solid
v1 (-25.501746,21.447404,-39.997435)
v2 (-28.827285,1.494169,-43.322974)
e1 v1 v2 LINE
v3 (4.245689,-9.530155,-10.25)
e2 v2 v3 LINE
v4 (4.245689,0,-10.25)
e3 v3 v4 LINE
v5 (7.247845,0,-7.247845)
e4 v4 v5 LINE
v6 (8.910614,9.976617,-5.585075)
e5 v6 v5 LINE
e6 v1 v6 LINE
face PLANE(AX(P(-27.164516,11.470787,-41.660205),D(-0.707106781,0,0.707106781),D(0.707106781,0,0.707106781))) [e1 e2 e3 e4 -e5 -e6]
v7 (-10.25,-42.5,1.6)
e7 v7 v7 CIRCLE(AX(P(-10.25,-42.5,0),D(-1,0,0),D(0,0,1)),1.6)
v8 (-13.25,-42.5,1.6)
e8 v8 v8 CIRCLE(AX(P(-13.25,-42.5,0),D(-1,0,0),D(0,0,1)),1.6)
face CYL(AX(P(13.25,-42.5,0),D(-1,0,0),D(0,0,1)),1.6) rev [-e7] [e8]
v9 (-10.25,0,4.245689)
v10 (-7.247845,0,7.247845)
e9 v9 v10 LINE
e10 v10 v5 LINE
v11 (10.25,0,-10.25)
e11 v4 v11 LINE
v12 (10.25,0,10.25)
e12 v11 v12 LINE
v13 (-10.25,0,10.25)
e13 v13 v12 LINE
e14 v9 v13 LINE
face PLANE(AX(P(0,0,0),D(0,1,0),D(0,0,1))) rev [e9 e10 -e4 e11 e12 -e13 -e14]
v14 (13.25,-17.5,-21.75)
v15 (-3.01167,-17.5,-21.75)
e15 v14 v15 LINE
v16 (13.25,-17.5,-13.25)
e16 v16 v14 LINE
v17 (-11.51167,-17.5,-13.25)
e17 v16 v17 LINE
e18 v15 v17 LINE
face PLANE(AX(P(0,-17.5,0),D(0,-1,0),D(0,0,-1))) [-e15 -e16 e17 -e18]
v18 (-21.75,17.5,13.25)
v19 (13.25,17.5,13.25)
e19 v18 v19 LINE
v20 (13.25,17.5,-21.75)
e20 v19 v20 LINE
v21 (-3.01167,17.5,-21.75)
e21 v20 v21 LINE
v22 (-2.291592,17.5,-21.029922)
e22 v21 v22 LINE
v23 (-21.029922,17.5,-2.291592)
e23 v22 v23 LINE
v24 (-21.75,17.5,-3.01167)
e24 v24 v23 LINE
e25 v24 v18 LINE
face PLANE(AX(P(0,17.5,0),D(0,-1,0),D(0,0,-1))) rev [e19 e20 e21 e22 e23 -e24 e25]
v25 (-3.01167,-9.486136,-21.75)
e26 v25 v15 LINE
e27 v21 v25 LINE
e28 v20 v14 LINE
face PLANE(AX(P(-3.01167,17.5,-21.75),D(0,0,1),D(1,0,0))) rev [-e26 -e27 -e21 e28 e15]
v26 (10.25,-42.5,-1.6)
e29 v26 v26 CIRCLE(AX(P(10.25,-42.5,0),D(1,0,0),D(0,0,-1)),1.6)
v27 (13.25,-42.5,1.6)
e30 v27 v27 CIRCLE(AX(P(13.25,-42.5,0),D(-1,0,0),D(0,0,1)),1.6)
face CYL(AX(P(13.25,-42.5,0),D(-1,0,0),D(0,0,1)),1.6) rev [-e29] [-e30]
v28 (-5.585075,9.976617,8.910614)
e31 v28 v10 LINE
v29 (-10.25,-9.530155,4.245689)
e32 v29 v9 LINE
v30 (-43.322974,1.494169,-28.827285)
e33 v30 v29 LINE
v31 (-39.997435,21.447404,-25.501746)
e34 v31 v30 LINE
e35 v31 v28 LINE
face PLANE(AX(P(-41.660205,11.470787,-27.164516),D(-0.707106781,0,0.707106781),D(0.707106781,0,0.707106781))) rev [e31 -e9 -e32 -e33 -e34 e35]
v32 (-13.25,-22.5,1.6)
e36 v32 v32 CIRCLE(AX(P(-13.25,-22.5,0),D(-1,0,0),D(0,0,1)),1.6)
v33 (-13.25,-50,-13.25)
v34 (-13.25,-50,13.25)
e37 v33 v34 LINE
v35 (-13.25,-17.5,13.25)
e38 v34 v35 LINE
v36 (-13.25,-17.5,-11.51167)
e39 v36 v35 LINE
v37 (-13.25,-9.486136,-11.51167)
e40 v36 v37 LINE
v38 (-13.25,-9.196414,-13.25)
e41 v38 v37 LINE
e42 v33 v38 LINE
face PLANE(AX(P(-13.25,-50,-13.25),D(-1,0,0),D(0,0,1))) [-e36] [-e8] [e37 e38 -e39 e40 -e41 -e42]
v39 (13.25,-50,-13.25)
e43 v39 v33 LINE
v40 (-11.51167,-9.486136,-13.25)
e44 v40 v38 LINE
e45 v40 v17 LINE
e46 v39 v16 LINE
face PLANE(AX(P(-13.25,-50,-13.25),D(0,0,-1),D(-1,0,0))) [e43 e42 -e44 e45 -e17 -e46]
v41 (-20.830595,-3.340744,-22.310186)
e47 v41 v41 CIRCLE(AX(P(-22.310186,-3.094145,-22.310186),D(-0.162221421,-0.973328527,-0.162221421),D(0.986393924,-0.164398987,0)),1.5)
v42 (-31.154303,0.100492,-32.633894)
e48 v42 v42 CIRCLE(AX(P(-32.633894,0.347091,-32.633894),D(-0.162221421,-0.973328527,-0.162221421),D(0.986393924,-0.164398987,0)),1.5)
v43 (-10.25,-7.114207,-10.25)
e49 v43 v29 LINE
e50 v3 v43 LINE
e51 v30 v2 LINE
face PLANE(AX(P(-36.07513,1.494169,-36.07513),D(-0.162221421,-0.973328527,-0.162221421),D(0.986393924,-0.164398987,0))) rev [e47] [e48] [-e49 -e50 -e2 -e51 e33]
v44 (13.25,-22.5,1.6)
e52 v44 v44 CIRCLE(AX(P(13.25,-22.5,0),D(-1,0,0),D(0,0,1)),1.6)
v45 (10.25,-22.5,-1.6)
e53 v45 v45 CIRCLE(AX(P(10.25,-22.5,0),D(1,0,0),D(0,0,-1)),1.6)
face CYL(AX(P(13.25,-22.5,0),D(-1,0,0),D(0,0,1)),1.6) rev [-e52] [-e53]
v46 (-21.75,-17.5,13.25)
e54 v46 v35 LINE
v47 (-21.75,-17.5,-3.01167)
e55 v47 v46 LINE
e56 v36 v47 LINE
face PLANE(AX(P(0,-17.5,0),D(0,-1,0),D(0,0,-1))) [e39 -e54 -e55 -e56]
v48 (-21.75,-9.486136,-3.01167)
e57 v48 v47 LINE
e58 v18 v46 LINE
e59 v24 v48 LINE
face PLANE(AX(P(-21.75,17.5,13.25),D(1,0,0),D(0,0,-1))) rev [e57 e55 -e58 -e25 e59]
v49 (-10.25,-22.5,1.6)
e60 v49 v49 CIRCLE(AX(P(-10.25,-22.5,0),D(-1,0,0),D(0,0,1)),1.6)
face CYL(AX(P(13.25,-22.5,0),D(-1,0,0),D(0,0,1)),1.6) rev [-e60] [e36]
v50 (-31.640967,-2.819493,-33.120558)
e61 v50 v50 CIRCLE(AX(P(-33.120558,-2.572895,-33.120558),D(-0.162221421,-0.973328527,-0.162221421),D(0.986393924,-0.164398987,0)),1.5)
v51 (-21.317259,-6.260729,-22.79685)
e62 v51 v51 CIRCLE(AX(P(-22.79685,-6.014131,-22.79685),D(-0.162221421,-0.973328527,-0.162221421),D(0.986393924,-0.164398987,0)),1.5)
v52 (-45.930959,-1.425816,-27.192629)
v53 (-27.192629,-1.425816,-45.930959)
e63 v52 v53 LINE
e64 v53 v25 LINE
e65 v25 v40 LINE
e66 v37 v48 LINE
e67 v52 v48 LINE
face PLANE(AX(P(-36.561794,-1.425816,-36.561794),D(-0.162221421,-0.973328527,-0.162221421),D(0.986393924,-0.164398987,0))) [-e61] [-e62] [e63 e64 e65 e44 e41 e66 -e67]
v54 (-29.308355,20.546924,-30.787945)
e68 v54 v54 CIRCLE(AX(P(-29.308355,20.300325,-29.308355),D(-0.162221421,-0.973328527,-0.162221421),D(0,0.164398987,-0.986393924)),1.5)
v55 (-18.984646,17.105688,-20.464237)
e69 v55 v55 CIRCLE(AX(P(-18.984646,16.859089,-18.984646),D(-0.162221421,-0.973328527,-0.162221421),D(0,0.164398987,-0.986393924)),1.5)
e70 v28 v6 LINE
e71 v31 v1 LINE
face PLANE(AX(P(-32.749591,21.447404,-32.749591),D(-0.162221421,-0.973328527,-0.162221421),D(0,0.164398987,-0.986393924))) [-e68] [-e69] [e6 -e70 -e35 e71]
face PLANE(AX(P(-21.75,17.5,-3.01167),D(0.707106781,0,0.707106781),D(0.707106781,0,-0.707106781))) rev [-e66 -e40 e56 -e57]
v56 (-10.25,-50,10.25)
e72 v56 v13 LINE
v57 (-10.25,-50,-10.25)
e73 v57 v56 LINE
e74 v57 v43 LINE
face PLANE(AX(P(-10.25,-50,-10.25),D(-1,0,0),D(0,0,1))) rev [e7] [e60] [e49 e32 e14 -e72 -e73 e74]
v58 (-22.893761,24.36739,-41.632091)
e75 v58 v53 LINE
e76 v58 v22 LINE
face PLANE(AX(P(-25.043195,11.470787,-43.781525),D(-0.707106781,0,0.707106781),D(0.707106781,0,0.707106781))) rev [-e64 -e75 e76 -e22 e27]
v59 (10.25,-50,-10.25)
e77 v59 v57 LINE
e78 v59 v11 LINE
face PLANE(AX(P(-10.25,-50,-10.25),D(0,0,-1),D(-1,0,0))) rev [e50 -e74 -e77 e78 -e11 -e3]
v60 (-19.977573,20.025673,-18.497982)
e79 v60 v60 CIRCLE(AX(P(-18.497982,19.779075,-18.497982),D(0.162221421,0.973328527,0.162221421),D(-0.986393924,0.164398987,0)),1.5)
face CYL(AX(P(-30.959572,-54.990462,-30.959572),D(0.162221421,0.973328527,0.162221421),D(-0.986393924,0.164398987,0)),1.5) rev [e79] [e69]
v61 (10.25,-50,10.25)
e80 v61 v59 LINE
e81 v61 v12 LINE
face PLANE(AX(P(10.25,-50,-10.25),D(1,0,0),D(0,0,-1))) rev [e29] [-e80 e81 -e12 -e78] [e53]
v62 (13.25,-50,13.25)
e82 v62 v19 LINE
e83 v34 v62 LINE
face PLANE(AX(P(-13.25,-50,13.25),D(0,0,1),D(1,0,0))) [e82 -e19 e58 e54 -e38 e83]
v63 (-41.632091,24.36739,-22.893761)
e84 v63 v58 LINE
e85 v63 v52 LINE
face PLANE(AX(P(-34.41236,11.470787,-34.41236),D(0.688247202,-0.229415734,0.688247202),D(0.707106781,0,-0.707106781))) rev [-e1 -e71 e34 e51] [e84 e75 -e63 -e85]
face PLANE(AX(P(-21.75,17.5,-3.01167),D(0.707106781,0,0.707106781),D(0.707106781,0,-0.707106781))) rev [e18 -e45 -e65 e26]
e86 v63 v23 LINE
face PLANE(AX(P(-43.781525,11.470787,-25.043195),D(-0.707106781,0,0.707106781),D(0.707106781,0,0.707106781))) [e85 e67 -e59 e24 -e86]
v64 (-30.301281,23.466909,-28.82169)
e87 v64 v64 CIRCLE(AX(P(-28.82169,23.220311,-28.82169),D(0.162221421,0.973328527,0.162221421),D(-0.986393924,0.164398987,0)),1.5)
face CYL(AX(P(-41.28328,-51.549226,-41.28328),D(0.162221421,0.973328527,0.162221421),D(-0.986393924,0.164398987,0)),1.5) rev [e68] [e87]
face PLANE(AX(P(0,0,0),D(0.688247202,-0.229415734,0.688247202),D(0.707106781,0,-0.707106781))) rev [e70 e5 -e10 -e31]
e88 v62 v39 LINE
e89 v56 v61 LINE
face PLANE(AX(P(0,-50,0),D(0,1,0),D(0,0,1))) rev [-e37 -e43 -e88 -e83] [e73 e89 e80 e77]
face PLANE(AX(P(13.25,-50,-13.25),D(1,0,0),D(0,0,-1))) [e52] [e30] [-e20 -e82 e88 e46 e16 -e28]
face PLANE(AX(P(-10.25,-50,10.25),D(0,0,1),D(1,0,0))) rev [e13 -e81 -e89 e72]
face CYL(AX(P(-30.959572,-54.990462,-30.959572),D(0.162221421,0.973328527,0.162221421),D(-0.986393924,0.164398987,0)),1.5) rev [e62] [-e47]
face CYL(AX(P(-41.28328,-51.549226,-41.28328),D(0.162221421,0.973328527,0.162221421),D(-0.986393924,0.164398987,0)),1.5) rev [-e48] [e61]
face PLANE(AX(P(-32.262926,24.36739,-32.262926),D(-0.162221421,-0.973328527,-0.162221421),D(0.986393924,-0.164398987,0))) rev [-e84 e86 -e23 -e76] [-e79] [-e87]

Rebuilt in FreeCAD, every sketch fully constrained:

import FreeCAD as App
import Part
import Sketcher
from FreeCAD import Vector


def add_polygon(sketch, points):
    """Adds a closed chain of lines whose ends are joined by coincident constraints."""
    first, n = sketch.GeometryCount, len(points)
    for a, b in zip(points, points[1:] + points[:1]):
        sketch.addGeometry(Part.LineSegment(App.Vector(*a, 0), App.Vector(*b, 0)), False)
    for i in range(n):
        sketch.addConstraint(Sketcher.Constraint("Coincident", first + i, 2, first + (i + 1) % n, 1))

doc = App.newDocument("Part")
body = doc.addObject("PartDesign::Body", "Body")

# Sketch on XZ plane
sketch1 = body.newObject("Sketcher::SketchObject", "Sketch")
sketch1.AttachmentSupport = (doc.getObject("XZ_Plane"), [""])
sketch1.MapMode = "FlatFace"
add_polygon(sketch1, [(-13, -13), (-13, 13), (13, 13), (13, -13)])  # lines 0-3
add_polygon(sketch1, [(10, 10), (-10, 10), (-10, -10), (10, -10)])  # lines 4-7
sketch1.addConstraint([
    Sketcher.Constraint("Vertical", 0),
    Sketcher.Constraint("Horizontal", 1),
    Sketcher.Constraint("Vertical", 2),
    Sketcher.Constraint("Horizontal", 3),
    Sketcher.Constraint("Horizontal", 4),
    Sketcher.Constraint("Vertical", 5),
    Sketcher.Constraint("Horizontal", 6),
    Sketcher.Constraint("Vertical", 7),
    Sketcher.Constraint("Symmetric", 0, 2, 2, 2, -1, 1),
    Sketcher.Constraint("Symmetric", 4, 2, 6, 2, -1, 1),
    Sketcher.Constraint("Equal", 3, 0),
    Sketcher.Constraint("Equal", 6, 5),
    Sketcher.Constraint("DistanceX", 1, 1, 1, 2, 26.5),
    Sketcher.Constraint("DistanceX", 4, 2, 4, 1, 20.5),
])
pad1 = body.newObject("PartDesign::Pad", "Pad")
pad1.Profile = sketch1
pad1.Length = 50

# Sketch on an angled plane
sketch2 = body.newObject("Sketcher::SketchObject", "Sketch001")
sketch2.Placement = App.Placement(Vector(0, 0, 0), App.Rotation(Vector(0.72547625, 0.217642875, -0.652928625), Vector(0, 0.948683298, 0.316227766), Vector(0.688247202, -0.229415734, 0.688247202), "ZXY"))
add_polygon(sketch2, [(10, -16), (16, 10), (-10, 16), (-16, -10)])  # lines 0-3
add_polygon(sketch2, [(-8, 12), (12, 8), (8, -12), (-12, -8)])  # lines 4-7
sketch2.addConstraint([
    Sketcher.Constraint("Symmetric", 0, 2, 2, 2, -1, 1),
    Sketcher.Constraint("Symmetric", 1, 2, 3, 2, -1, 1),
    Sketcher.Constraint("Symmetric", 4, 2, 6, 2, -1, 1),
    Sketcher.Constraint("Symmetric", 5, 2, 7, 2, -1, 1),
    Sketcher.Constraint("Perpendicular", 0, 1),
    Sketcher.Constraint("Parallel", 3, 4),
    Sketcher.Constraint("Perpendicular", 4, 5),
    Sketcher.Constraint("Equal", 0, 1),
    Sketcher.Constraint("Equal", 4, 5),
    Sketcher.Constraint("Distance", 0, 26.5),
    Sketcher.Constraint("Distance", 4, 20.5),
    Sketcher.Constraint("DistanceY", 4, 2, 1, 2, 8.178798),
])
pad2 = body.newObject("PartDesign::Pad", "Pad001")
pad2.Profile = sketch2
pad2.Length = 50
pad2.Reversed = True

# Sketch on XZ plane
sketch3 = body.newObject("Sketcher::SketchObject", "Sketch002")
sketch3.AttachmentSupport = (doc.getObject("XZ_Plane"), [""])
sketch3.MapMode = "FlatFace"
add_polygon(sketch3, [(-22, 13), (13, 13), (13, -22), (-3, -22), (-22, -3)])  # lines 0-4
sketch3.addConstraint([
    Sketcher.Constraint("Horizontal", 0),
    Sketcher.Constraint("Vertical", 1),
    Sketcher.Constraint("Horizontal", 2),
    Sketcher.Constraint("Vertical", 4),
    Sketcher.Constraint("Equal", 0, 1),
    Sketcher.Constraint("Equal", 2, 4),
    Sketcher.Constraint("DistanceX", 0, 1, 0, 2, 35.0),
    Sketcher.Constraint("Distance", 3, 26.5),
    Sketcher.Constraint("DistanceX", -1, 1, 0, 2, 13.25),
    Sketcher.Constraint("DistanceY", -1, 1, 0, 2, 13.25),
])
pad3 = body.newObject("PartDesign::Pad", "Pad002")
pad3.Profile = sketch3
pad3.Length = 35
pad3.Midplane = True

# Sketch on XZ plane
sketch4 = body.newObject("Sketcher::SketchObject", "Sketch003")
sketch4.AttachmentSupport = (doc.getObject("XZ_Plane"), [""])
sketch4.MapMode = "FlatFace"
add_polygon(sketch4, [(-10, -10), (-10, 10), (10, 10), (10, -10)])  # lines 0-3
sketch4.addConstraint([
    Sketcher.Constraint("Vertical", 0),
    Sketcher.Constraint("Horizontal", 1),
    Sketcher.Constraint("Vertical", 2),
    Sketcher.Constraint("Horizontal", 3),
    Sketcher.Constraint("Symmetric", 0, 2, 2, 2, -1, 1),
    Sketcher.Constraint("Equal", 3, 0),
    Sketcher.Constraint("DistanceX", 1, 1, 1, 2, 20.5),
])
pocket1 = body.newObject("PartDesign::Pocket", "Pocket")
pocket1.Profile = sketch4
pocket1.Type = "ThroughAll"
pocket1.Reversed = True

# Sketch on an angled plane
sketch5 = body.newObject("Sketcher::SketchObject", "Sketch004")
sketch5.Placement = App.Placement(Vector(0, 0, 0), App.Rotation(Vector(0.72547625, 0.217642875, -0.652928625), Vector(0, 0.948683298, 0.316227766), Vector(0.688247202, -0.229415734, 0.688247202), "ZXY"))
add_polygon(sketch5, [(8, -12), (12, 8), (-8, 12), (-12, -8)])  # lines 0-3
sketch5.addConstraint([
    Sketcher.Constraint("Symmetric", 0, 2, 2, 2, -1, 1),
    Sketcher.Constraint("Symmetric", 1, 2, 3, 2, -1, 1),
    Sketcher.Constraint("Perpendicular", 0, 1),
    Sketcher.Constraint("Equal", 0, 1),
    Sketcher.Constraint("Distance", 0, 20.5),
    Sketcher.Constraint("DistanceX", 1, 2, 0, 2, 19.980928),
])
pocket2 = body.newObject("PartDesign::Pocket", "Pocket001")
pocket2.Profile = sketch5
pocket2.Type = "ThroughAll"

# Sketch on an angled plane
sketch6 = body.newObject("Sketcher::SketchObject", "Sketch005")
sketch6.Placement = App.Placement(Vector(2.149434, 12.896603, 2.149434), App.Rotation(Vector(0.986754382, -0.160014224, -0.026669037), Vector(0, 0.164398987, -0.986393924), Vector(0.162221421, 0.973328527, 0.162221421), "ZXY"))
sketch6.addGeometry([
    Part.Circle(Vector(-31.4, 32.2, 0), Vector(0, 0, 1), 1.5),
    Part.Circle(Vector(-20.9, 21.5, 0), Vector(0, 0, 1), 1.5),
], False)
sketch6.addConstraint([
    Sketcher.Constraint("Equal", 0, 1),
    Sketcher.Constraint("Diameter", 0, 3.0),
    Sketcher.Constraint("DistanceY", 1, 3, 0, 3, 10.748979),
    Sketcher.Constraint("DistanceX", 0, 3, -1, 1, 31.386862),
    Sketcher.Constraint("DistanceY", -1, 1, 0, 3, 32.246936),
    Sketcher.Constraint("DistanceX", 1, 3, -1, 1, 20.924575),
])
pocket3 = body.newObject("PartDesign::Pocket", "Pocket002")
pocket3.Profile = sketch6
pocket3.Type = "ThroughAll"

# Sketch on YZ plane
sketch7 = body.newObject("Sketcher::SketchObject", "Sketch006")
sketch7.AttachmentSupport = (doc.getObject("YZ_Plane"), [""])
sketch7.MapMode = "FlatFace"
sketch7.AttachmentOffset = App.Placement(Vector(0, 0, -13.25), App.Rotation())
sketch7.addGeometry([
    Part.Circle(Vector(-22.5, 0, 0), Vector(0, 0, 1), 1.6),
    Part.Circle(Vector(-42.5, 0, 0), Vector(0, 0, 1), 1.6),
], False)
sketch7.addConstraint([
    Sketcher.Constraint("Equal", 0, 1),
    Sketcher.Constraint("PointOnObject", 0, 3, -1),
    Sketcher.Constraint("PointOnObject", 1, 3, -1),
    Sketcher.Constraint("Diameter", 0, 3.2),
    Sketcher.Constraint("DistanceX", 1, 3, 0, 3, 20.0),
    Sketcher.Constraint("DistanceX", 0, 3, -1, 1, 22.5),
])
pocket4 = body.newObject("PartDesign::Pocket", "Pocket003")
pocket4.Profile = sketch7
pocket4.Type = "ThroughAll"
pocket4.Reversed = True

doc.recompute()
